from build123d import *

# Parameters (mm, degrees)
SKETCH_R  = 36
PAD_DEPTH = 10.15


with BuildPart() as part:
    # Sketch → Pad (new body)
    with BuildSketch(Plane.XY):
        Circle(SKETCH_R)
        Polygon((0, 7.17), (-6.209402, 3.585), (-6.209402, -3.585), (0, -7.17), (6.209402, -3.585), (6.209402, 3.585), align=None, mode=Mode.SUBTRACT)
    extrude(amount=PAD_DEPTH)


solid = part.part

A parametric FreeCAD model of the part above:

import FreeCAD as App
import Part
import Sketcher
from FreeCAD import Vector
Q = App.Units.Quantity


def add_polygon(sketch, points):
    """Adds a closed chain of lines whose ends are joined by coincident constraints."""
    first, n = sketch.GeometryCount, len(points)
    for a, b in zip(points, points[1:] + points[:1]):
        sketch.addGeometry(Part.LineSegment(App.Vector(*a, 0), App.Vector(*b, 0)), False)
    for i in range(n):
        sketch.addConstraint(Sketcher.Constraint("Coincident", first + i, 2, first + (i + 1) % n, 1))

doc = App.newDocument("Part")
body = doc.addObject("PartDesign::Body", "Body")

# Sketch on XY plane
sketch1 = doc.addObject("Sketcher::SketchObject", "Sketch")
body.addObject(sketch1)
sketch1.AttachmentSupport = (doc.XY_Plane, [""])
sketch1.MapMode = "FlatFace"
sketch1.addGeometry(Part.Circle(Vector(0, 0, 0), Vector(0, 0, 1), 36), False)  # 0
add_polygon(sketch1, [(-6, 4), (0, 7), (6, 4), (6, -4), (0, -7), (-6, -4)])  # lines 1-6
sketch1.addConstraint([
    Sketcher.Constraint("Vertical", 3),
    Sketcher.Constraint("Vertical", 6),
    Sketcher.Constraint("Coincident", 0, 3, -1, 1),
    Sketcher.Constraint("Symmetric", 1, 2, 4, 2, -1, 1),
    Sketcher.Constraint("Symmetric", 2, 2, 5, 2, -1, 1),
    Sketcher.Constraint("PointOnObject", 1, 2, -2),
    Sketcher.Constraint("Parallel", 1, 4),
    Sketcher.Constraint("Horizontal", 3, 2, 5, 2),
    Sketcher.Constraint("Diameter", 0, Q("72 mm")),
    Sketcher.Constraint("Angle", 1, Q("30.000001 deg")),
    Sketcher.Constraint("DistanceY", 3, 2, 3, 1, Q("7.17 mm")),
    Sketcher.Constraint("Distance", 1, Q("7.17 mm")),
])
pad1 = doc.addObject("PartDesign::Pad", "Pad")
body.addObject(pad1)
pad1.Profile = sketch1
pad1.Length = 10.15

doc.recompute()
